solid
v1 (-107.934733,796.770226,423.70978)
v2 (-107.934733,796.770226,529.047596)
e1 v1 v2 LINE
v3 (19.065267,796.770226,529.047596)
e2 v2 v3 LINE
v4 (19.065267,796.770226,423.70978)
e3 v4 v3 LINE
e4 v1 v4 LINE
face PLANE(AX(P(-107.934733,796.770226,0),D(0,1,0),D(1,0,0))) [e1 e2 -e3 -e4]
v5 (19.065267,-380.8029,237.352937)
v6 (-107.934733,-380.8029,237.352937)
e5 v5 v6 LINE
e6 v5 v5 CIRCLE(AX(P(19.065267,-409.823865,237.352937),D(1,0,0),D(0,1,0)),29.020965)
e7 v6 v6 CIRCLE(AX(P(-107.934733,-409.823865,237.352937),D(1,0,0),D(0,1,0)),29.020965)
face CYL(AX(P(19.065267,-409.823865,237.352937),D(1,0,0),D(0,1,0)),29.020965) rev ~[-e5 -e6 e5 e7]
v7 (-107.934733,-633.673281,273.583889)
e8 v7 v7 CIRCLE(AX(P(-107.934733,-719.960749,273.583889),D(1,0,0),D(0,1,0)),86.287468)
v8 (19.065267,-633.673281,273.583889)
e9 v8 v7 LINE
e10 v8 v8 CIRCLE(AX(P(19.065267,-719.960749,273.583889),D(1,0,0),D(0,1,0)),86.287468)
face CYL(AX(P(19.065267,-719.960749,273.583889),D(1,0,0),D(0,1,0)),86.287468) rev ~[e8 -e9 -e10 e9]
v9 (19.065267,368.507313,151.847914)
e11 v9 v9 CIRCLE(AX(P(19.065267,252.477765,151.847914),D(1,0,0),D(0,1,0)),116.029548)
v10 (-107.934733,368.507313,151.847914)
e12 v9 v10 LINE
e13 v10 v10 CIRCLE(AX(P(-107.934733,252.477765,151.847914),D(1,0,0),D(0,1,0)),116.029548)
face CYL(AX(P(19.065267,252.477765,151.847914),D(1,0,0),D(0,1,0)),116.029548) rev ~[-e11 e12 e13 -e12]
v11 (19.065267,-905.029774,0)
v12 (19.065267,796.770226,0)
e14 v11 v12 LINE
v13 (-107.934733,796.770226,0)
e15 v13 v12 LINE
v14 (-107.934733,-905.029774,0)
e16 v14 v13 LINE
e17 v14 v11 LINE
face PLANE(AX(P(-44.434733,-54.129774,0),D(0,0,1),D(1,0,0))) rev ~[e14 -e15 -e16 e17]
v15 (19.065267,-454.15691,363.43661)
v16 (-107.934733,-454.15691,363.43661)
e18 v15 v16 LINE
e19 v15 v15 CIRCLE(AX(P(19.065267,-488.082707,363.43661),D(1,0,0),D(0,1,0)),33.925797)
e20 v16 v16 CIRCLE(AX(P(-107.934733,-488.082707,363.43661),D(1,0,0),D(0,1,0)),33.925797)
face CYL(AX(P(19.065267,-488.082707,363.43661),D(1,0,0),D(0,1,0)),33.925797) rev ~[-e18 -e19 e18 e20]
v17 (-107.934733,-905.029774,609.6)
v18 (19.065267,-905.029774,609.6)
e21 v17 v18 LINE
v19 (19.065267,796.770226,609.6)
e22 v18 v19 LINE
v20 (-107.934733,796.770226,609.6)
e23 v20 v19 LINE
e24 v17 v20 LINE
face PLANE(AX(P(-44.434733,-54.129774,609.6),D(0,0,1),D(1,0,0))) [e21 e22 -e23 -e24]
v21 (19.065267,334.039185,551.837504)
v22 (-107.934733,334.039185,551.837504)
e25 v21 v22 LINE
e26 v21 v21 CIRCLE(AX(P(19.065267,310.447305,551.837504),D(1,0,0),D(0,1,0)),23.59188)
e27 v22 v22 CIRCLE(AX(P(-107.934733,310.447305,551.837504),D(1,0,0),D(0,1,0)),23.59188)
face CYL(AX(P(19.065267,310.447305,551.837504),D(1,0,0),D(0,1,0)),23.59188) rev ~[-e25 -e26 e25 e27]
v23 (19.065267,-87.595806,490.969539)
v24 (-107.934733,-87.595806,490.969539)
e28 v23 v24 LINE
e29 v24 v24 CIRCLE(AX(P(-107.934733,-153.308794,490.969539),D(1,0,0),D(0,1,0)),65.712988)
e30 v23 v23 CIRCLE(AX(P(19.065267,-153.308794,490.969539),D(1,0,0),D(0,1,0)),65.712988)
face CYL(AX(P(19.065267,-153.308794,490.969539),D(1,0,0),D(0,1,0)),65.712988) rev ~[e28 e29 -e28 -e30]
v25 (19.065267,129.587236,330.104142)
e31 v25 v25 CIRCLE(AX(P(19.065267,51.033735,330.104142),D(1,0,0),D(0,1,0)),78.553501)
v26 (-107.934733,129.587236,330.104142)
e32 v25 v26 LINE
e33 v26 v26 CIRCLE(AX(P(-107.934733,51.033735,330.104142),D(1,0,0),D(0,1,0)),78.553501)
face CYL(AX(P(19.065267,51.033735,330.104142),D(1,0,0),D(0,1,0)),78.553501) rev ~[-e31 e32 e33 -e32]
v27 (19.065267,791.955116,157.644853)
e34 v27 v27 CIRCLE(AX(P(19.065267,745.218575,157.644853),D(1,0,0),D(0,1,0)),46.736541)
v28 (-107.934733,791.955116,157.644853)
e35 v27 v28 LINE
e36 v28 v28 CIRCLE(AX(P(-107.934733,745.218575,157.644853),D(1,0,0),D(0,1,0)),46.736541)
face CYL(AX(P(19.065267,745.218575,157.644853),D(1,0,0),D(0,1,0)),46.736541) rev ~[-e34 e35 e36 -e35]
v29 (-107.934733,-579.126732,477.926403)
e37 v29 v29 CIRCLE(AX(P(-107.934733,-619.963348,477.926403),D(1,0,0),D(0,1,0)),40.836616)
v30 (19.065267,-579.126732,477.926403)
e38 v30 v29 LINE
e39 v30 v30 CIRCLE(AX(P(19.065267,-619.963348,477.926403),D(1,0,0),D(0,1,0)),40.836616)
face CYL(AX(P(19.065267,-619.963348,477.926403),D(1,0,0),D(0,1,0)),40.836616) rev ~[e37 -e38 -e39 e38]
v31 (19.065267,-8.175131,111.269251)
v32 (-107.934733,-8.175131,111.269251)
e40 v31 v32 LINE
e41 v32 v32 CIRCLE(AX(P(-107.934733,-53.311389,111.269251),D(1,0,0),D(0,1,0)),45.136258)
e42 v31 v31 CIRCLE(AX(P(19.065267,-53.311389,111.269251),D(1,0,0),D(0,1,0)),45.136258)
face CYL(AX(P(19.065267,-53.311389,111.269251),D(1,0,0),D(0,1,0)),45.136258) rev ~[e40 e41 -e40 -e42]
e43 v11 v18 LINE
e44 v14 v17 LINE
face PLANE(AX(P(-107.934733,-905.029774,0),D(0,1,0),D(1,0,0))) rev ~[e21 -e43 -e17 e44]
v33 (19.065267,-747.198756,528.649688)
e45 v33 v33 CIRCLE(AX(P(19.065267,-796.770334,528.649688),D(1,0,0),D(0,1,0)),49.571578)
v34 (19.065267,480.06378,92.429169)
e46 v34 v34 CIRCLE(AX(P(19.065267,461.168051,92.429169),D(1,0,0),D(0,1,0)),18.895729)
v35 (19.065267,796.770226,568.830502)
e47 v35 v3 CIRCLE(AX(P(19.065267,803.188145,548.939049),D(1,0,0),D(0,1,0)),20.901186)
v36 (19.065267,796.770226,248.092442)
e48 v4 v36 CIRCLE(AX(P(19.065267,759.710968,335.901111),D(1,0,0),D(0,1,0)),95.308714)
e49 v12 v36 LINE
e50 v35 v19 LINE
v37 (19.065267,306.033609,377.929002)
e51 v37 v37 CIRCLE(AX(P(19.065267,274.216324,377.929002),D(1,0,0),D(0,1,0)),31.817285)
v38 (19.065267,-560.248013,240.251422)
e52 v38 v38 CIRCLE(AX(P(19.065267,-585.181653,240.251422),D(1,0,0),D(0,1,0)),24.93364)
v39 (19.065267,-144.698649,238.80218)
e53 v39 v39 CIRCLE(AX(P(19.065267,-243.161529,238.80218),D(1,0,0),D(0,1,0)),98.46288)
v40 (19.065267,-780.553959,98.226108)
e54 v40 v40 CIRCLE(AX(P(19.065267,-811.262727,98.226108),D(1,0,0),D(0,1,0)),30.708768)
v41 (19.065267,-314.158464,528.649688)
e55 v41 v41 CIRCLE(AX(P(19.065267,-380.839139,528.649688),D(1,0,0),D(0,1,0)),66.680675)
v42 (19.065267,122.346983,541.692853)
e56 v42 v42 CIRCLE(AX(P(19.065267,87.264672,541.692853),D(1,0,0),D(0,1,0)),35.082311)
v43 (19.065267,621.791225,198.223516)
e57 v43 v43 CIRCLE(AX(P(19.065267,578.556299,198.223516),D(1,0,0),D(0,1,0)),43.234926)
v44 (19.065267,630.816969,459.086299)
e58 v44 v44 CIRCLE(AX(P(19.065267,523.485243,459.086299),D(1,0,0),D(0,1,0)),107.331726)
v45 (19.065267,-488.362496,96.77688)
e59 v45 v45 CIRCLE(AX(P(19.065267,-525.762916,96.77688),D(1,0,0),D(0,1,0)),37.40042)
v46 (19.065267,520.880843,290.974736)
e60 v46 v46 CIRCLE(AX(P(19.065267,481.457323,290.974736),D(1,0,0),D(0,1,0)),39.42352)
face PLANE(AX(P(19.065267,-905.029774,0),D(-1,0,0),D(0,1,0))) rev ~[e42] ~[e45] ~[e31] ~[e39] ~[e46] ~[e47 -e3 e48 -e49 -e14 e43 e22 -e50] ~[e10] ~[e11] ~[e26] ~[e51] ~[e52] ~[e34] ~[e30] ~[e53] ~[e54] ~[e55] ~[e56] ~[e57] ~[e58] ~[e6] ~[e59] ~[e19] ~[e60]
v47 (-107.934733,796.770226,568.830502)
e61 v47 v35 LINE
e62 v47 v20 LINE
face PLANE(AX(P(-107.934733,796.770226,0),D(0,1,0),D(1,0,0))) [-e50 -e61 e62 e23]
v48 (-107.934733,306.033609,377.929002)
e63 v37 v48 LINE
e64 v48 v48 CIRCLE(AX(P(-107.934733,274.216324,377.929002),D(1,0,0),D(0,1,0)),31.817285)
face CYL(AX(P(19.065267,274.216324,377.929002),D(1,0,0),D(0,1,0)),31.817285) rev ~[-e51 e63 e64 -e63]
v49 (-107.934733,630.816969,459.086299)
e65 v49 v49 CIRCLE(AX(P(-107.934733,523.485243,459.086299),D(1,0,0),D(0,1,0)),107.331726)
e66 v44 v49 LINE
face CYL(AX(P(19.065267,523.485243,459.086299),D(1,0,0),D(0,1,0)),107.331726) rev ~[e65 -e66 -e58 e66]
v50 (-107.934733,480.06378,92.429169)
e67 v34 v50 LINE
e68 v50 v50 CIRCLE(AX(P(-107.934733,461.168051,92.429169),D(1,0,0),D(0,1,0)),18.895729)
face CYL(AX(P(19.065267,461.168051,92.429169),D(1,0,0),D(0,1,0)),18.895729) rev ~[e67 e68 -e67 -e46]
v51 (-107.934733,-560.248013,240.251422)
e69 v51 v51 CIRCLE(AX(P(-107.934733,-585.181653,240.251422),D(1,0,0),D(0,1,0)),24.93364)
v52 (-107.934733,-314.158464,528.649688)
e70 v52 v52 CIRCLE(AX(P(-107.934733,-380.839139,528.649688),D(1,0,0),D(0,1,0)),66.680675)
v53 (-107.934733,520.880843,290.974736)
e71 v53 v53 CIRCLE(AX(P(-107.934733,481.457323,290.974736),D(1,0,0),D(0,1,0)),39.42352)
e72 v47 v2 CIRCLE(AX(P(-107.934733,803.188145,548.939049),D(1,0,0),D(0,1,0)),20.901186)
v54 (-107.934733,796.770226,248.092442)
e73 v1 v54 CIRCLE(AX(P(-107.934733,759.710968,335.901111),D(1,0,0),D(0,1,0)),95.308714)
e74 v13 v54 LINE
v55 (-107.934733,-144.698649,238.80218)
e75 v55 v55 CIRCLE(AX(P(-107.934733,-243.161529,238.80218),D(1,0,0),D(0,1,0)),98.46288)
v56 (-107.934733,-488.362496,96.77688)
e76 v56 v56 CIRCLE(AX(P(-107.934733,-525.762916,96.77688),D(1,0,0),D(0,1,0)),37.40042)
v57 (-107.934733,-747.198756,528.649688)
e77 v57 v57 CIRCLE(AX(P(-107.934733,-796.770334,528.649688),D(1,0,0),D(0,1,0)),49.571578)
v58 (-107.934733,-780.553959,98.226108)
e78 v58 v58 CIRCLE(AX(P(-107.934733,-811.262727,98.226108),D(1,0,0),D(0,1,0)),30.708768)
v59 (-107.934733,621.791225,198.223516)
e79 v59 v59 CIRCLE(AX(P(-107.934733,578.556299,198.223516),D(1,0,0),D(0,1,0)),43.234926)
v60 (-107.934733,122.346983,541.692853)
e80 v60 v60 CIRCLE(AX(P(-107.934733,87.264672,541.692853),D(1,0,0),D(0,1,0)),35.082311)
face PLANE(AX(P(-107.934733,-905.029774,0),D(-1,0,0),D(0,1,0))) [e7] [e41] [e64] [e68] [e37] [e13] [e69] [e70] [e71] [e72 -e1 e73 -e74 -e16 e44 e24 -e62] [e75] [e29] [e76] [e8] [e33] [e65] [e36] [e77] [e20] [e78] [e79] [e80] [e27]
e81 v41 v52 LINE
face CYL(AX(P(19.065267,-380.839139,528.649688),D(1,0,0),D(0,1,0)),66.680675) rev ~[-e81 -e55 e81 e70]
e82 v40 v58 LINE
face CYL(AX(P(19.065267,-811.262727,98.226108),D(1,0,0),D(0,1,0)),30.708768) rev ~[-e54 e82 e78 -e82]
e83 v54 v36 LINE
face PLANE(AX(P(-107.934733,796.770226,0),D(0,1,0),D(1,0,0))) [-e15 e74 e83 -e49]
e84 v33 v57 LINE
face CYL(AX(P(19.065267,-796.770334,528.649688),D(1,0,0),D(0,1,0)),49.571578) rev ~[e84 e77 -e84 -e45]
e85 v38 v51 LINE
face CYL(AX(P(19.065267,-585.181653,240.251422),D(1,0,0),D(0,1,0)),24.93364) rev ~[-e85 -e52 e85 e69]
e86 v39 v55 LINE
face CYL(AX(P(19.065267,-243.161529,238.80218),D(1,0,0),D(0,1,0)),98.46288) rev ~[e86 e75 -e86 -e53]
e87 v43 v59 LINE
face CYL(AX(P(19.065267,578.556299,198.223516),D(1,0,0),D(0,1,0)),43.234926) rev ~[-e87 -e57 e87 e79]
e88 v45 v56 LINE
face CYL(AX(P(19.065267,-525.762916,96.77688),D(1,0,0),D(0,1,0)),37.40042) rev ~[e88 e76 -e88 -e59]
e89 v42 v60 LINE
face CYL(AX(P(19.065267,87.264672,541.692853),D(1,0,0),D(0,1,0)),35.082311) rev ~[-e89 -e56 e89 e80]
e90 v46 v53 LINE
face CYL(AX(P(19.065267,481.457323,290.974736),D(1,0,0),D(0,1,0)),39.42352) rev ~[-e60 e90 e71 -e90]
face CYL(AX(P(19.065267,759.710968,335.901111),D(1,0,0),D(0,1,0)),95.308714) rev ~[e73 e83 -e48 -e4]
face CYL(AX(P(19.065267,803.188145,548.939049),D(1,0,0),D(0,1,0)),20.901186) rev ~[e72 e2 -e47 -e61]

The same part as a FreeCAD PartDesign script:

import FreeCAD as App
import Part
import Sketcher
from FreeCAD import Vector
Q = App.Units.Quantity


def add_polygon(sketch, points):
    """Adds a closed chain of lines whose ends are joined by coincident constraints."""
    first, n = sketch.GeometryCount, len(points)
    for a, b in zip(points, points[1:] + points[:1]):
        sketch.addGeometry(Part.LineSegment(App.Vector(*a, 0), App.Vector(*b, 0)), False)
    for i in range(n):
        sketch.addConstraint(Sketcher.Constraint("Coincident", first + i, 2, first + (i + 1) % n, 1))

doc = App.newDocument("Part")
body = doc.addObject("PartDesign::Body", "Body")

sketch1 = body.newObject("Sketcher::SketchObject", "Sketch")
sketch1.AttachmentSupport = (doc.getObject("XY_Plane"), [""])
sketch1.MapMode = "FlatFace"
add_polygon(sketch1, [(-108, 797), (-108, -905), (19, -905), (19, 797)])
sketch1.addConstraint([
    Sketcher.Constraint("Vertical", 0),
    Sketcher.Constraint("Horizontal", 1),
    Sketcher.Constraint("Vertical", 2),
    Sketcher.Constraint("Horizontal", 3),
    Sketcher.Constraint("DistanceX", 1, 1, 1, 2, Q("5 in")),
    Sketcher.Constraint("DistanceY", 0, 2, 0, 1, Q("67 in")),
    Sketcher.Constraint("DistanceX", 0, 2, -1, 1, Q("107.934733 mm")),
    Sketcher.Constraint("DistanceY", 0, 2, -1, 1, Q("905.029774 mm")),
])
pad1 = body.newObject("PartDesign::Pad", "Pad")
pad1.Profile = sketch1
pad1.Length = Q("24 in")

sketch2 = body.newObject("Sketcher::SketchObject", "Sketch001")
sketch2.AttachmentSupport = (doc.getObject("YZ_Plane"), [""])
sketch2.MapMode = "FlatFace"
sketch2.AttachmentOffset = App.Placement(Vector(0, 0, 19.065267), App.Rotation())
sketch2.addGeometry([
    Part.Circle(Vector(-797, 529, 0), Vector(0, 0, 1), 50),
    Part.Circle(Vector(-720, 274, 0), Vector(0, 0, 1), 86),
    Part.Circle(Vector(-526, 97, 0), Vector(0, 0, 1), 37),
    Part.Circle(Vector(-488, 363, 0), Vector(0, 0, 1), 34),
    Part.Circle(Vector(-620, 478, 0), Vector(0, 0, 1), 41),
    Part.Circle(Vector(-811, 98, 0), Vector(0, 0, 1), 31),
    Part.Circle(Vector(-243, 239, 0), Vector(0, 0, 1), 98),
    Part.Circle(Vector(-381, 529, 0), Vector(0, 0, 1), 67),
    Part.Circle(Vector(51, 330, 0), Vector(0, 0, 1), 79),
    Part.Circle(Vector(-153, 491, 0), Vector(0, 0, 1), 66),
    Part.Circle(Vector(-53, 111, 0), Vector(0, 0, 1), 45),
    Part.Circle(Vector(252, 152, 0), Vector(0, 0, 1), 116),
    Part.Circle(Vector(274, 378, 0), Vector(0, 0, 1), 32),
    Part.Circle(Vector(87, 542, 0), Vector(0, 0, 1), 35),
    Part.Circle(Vector(523, 459, 0), Vector(0, 0, 1), 107),
    Part.Circle(Vector(310, 552, 0), Vector(0, 0, 1), 24),
    Part.Circle(Vector(481, 291, 0), Vector(0, 0, 1), 39),
    Part.Circle(Vector(579, 198, 0), Vector(0, 0, 1), 43),
    Part.Circle(Vector(461, 92, 0), Vector(0, 0, 1), 19),
    Part.Circle(Vector(760, 336, 0), Vector(0, 0, 1), 95),
    Part.Circle(Vector(803, 549, 0), Vector(0, 0, 1), 21),
    Part.Circle(Vector(745, 158, 0), Vector(0, 0, 1), 47),
    Part.Circle(Vector(-585, 240, 0), Vector(0, 0, 1), 25),
    Part.Circle(Vector(-410, 237, 0), Vector(0, 0, 1), 29),
], False)
sketch2.addConstraint([
    Sketcher.Constraint("Horizontal", 0, 3, 7, 3),
    Sketcher.Constraint("Diameter", 8, Q("157.107002 mm")),
    Sketcher.Constraint("Diameter", 2, Q("74.80084 mm")),
    Sketcher.Constraint("Diameter", 4, Q("81.673232 mm")),
    Sketcher.Constraint("Diameter", 6, Q("196.92576 mm")),
    Sketcher.Constraint("Diameter", 7, Q("133.36135 mm")),
    Sketcher.Constraint("Diameter", 12, Q("63.63457 mm")),
    Sketcher.Constraint("Diameter", 13, Q("70.164622 mm")),
    Sketcher.Constraint("Diameter", 14, Q("214.663452 mm")),
    Sketcher.Constraint("Diameter", 15, Q("47.18376 mm")),
    Sketcher.Constraint("Diameter", 16, Q("78.84704 mm")),
    Sketcher.Constraint("Diameter", 20, Q("41.802372 mm")),
    Sketcher.Constraint("Diameter", 22, Q("49.86728 mm")),
    Sketcher.Constraint("Diameter", 23, Q("58.04193 mm")),
    Sketcher.Constraint("DistanceY", -1, 1, 4, 3, Q("18.8160001 in")),
    Sketcher.Constraint("Diameter", 0, Q("99.143156 mm")),
    Sketcher.Constraint("Diameter", 1, Q("172.574936 mm")),
    Sketcher.Constraint("Diameter", 3, Q("67.851594 mm")),
    Sketcher.Constraint("Diameter", 5, Q("61.417536 mm")),
    Sketcher.Constraint("Diameter", 9, Q("131.425976 mm")),
    Sketcher.Constraint("Diameter", 10, Q("90.272516 mm")),
    Sketcher.Constraint("Diameter", 11, Q("232.059096 mm")),
    Sketcher.Constraint("Diameter", 17, Q("86.469852 mm")),
    Sketcher.Constraint("Diameter", 18, Q("37.791458 mm")),
    Sketcher.Constraint("Diameter", 19, Q("190.617428 mm")),
    Sketcher.Constraint("Diameter", 21, Q("93.473082 mm")),
    Sketcher.Constraint("DistanceX", 19, 3, 20, 3, Q("1.7116999 in")),
    Sketcher.Constraint("DistanceY", -1, 1, 14, 3, Q("459.086299 mm")),
    Sketcher.Constraint("DistanceX", -1, 1, 17, 3, Q("578.556299 mm")),
    Sketcher.Constraint("DistanceY", 1, 3, 0, 3, Q("255.065799 mm")),
    Sketcher.Constraint("DistanceX", 1, 3, 4, 3, Q("99.997401 mm")),
    Sketcher.Constraint("DistanceY", 5, 3, 3, 3, Q("265.210502 mm")),
    Sketcher.Constraint("DistanceY", 2, 3, 6, 3, Q("142.0253 mm")),
    Sketcher.Constraint("DistanceX", 5, 3, 6, 3, Q("568.101198 mm")),
    Sketcher.Constraint("DistanceX", 6, 3, 13, 3, Q("330.426201 mm")),
    Sketcher.Constraint("DistanceY", 12, 3, 15, 3, Q("173.908502 mm")),
    Sketcher.Constraint("DistanceX", 12, 3, 16, 3, Q("207.240999 mm")),
    Sketcher.Constraint("DistanceY", 11, 3, 17, 3, Q("46.375602 mm")),
    Sketcher.Constraint("DistanceX", 14, 3, 20, 3, Q("279.702902 mm")),
    Sketcher.Constraint("DistanceY", -1, 1, 0, 3, Q("528.649688 mm")),
    Sketcher.Constraint("DistanceX", 1, 3, -1, 1, Q("719.960749 mm")),
    Sketcher.Constraint("DistanceY", -1, 1, 2, 3, Q("96.77688 mm")),
    Sketcher.Constraint("DistanceY", -1, 1, 3, 3, Q("363.43661 mm")),
    Sketcher.Constraint("DistanceX", 6, 3, -1, 1, Q("243.161529 mm")),
    Sketcher.Constraint("DistanceX", 7, 3, -1, 1, Q("380.839139 mm")),
    Sketcher.Constraint("DistanceY", -1, 1, 9, 3, Q("490.969539 mm")),
    Sketcher.Constraint("DistanceX", 10, 3, -1, 1, Q("53.311389 mm")),
    Sketcher.Constraint("DistanceY", -1, 1, 10, 3, Q("111.269251 mm")),
    Sketcher.Constraint("DistanceX", -1, 1, 18, 3, Q("461.168051 mm")),
    Sketcher.Constraint("DistanceY", -1, 1, 18, 3, Q("92.429169 mm")),
    Sketcher.Constraint("DistanceX", -1, 1, 19, 3, Q("759.710968 mm")),
    Sketcher.Constraint("DistanceY", -1, 1, 19, 3, Q("335.901111 mm")),
    Sketcher.Constraint("DistanceY", -1, 1, 20, 3, Q("548.939049 mm")),
    Sketcher.Constraint("DistanceY", -1, 1, 22, 3, Q("240.251422 mm")),
    Sketcher.Constraint("DistanceX", 0, 3, 2, 3, Q("271.007418 mm")),
    Sketcher.Constraint("DistanceX", 1, 3, 3, 3, Q("231.878042 mm")),
    Sketcher.Constraint("DistanceX", 2, 3, 3, 3, Q("37.680209 mm")),
    Sketcher.Constraint("DistanceX", 3, 3, 8, 3, Q("539.116442 mm")),
    Sketcher.Constraint("DistanceY", 8, 3, 4, 3, Q("147.822261 mm")),
    Sketcher.Constraint("DistanceX", 9, 3, 8, 3, Q("204.342529 mm")),
    Sketcher.Constraint("DistanceX", 8, 3, 11, 3, Q("201.44403 mm")),
    Sketcher.Constraint("DistanceY", 11, 3, 8, 3, Q("178.256228 mm")),
    Sketcher.Constraint("DistanceX", 11, 3, 12, 3, Q("21.738559 mm")),
    Sketcher.Constraint("DistanceY", 11, 3, 12, 3, Q("226.081088 mm")),
    Sketcher.Constraint("DistanceY", 8, 3, 13, 3, Q("211.588711 mm")),
    Sketcher.Constraint("DistanceX", 12, 3, 15, 3, Q("36.230981 mm")),
    Sketcher.Constraint("DistanceY", 11, 3, 16, 3, Q("139.126822 mm")),
    Sketcher.Constraint("DistanceY", 21, 3, 19, 3, Q("178.256258 mm")),
    Sketcher.Constraint("DistanceX", 16, 3, 21, 3, Q("263.761252 mm")),
    Sketcher.Constraint("DistanceX", 2, 3, 23, 3, Q("115.939051 mm")),
    Sketcher.Constraint("DistanceY", 23, 3, 7, 3, Q("291.296751 mm")),
    Sketcher.Constraint("DistanceX", 22, 3, -1, 1, Q("585.181653 mm")),
])
pocket1 = body.newObject("PartDesign::Pocket", "Pocket")
pocket1.Profile = sketch2
pocket1.Length = Q("5 in")

doc.recompute()
